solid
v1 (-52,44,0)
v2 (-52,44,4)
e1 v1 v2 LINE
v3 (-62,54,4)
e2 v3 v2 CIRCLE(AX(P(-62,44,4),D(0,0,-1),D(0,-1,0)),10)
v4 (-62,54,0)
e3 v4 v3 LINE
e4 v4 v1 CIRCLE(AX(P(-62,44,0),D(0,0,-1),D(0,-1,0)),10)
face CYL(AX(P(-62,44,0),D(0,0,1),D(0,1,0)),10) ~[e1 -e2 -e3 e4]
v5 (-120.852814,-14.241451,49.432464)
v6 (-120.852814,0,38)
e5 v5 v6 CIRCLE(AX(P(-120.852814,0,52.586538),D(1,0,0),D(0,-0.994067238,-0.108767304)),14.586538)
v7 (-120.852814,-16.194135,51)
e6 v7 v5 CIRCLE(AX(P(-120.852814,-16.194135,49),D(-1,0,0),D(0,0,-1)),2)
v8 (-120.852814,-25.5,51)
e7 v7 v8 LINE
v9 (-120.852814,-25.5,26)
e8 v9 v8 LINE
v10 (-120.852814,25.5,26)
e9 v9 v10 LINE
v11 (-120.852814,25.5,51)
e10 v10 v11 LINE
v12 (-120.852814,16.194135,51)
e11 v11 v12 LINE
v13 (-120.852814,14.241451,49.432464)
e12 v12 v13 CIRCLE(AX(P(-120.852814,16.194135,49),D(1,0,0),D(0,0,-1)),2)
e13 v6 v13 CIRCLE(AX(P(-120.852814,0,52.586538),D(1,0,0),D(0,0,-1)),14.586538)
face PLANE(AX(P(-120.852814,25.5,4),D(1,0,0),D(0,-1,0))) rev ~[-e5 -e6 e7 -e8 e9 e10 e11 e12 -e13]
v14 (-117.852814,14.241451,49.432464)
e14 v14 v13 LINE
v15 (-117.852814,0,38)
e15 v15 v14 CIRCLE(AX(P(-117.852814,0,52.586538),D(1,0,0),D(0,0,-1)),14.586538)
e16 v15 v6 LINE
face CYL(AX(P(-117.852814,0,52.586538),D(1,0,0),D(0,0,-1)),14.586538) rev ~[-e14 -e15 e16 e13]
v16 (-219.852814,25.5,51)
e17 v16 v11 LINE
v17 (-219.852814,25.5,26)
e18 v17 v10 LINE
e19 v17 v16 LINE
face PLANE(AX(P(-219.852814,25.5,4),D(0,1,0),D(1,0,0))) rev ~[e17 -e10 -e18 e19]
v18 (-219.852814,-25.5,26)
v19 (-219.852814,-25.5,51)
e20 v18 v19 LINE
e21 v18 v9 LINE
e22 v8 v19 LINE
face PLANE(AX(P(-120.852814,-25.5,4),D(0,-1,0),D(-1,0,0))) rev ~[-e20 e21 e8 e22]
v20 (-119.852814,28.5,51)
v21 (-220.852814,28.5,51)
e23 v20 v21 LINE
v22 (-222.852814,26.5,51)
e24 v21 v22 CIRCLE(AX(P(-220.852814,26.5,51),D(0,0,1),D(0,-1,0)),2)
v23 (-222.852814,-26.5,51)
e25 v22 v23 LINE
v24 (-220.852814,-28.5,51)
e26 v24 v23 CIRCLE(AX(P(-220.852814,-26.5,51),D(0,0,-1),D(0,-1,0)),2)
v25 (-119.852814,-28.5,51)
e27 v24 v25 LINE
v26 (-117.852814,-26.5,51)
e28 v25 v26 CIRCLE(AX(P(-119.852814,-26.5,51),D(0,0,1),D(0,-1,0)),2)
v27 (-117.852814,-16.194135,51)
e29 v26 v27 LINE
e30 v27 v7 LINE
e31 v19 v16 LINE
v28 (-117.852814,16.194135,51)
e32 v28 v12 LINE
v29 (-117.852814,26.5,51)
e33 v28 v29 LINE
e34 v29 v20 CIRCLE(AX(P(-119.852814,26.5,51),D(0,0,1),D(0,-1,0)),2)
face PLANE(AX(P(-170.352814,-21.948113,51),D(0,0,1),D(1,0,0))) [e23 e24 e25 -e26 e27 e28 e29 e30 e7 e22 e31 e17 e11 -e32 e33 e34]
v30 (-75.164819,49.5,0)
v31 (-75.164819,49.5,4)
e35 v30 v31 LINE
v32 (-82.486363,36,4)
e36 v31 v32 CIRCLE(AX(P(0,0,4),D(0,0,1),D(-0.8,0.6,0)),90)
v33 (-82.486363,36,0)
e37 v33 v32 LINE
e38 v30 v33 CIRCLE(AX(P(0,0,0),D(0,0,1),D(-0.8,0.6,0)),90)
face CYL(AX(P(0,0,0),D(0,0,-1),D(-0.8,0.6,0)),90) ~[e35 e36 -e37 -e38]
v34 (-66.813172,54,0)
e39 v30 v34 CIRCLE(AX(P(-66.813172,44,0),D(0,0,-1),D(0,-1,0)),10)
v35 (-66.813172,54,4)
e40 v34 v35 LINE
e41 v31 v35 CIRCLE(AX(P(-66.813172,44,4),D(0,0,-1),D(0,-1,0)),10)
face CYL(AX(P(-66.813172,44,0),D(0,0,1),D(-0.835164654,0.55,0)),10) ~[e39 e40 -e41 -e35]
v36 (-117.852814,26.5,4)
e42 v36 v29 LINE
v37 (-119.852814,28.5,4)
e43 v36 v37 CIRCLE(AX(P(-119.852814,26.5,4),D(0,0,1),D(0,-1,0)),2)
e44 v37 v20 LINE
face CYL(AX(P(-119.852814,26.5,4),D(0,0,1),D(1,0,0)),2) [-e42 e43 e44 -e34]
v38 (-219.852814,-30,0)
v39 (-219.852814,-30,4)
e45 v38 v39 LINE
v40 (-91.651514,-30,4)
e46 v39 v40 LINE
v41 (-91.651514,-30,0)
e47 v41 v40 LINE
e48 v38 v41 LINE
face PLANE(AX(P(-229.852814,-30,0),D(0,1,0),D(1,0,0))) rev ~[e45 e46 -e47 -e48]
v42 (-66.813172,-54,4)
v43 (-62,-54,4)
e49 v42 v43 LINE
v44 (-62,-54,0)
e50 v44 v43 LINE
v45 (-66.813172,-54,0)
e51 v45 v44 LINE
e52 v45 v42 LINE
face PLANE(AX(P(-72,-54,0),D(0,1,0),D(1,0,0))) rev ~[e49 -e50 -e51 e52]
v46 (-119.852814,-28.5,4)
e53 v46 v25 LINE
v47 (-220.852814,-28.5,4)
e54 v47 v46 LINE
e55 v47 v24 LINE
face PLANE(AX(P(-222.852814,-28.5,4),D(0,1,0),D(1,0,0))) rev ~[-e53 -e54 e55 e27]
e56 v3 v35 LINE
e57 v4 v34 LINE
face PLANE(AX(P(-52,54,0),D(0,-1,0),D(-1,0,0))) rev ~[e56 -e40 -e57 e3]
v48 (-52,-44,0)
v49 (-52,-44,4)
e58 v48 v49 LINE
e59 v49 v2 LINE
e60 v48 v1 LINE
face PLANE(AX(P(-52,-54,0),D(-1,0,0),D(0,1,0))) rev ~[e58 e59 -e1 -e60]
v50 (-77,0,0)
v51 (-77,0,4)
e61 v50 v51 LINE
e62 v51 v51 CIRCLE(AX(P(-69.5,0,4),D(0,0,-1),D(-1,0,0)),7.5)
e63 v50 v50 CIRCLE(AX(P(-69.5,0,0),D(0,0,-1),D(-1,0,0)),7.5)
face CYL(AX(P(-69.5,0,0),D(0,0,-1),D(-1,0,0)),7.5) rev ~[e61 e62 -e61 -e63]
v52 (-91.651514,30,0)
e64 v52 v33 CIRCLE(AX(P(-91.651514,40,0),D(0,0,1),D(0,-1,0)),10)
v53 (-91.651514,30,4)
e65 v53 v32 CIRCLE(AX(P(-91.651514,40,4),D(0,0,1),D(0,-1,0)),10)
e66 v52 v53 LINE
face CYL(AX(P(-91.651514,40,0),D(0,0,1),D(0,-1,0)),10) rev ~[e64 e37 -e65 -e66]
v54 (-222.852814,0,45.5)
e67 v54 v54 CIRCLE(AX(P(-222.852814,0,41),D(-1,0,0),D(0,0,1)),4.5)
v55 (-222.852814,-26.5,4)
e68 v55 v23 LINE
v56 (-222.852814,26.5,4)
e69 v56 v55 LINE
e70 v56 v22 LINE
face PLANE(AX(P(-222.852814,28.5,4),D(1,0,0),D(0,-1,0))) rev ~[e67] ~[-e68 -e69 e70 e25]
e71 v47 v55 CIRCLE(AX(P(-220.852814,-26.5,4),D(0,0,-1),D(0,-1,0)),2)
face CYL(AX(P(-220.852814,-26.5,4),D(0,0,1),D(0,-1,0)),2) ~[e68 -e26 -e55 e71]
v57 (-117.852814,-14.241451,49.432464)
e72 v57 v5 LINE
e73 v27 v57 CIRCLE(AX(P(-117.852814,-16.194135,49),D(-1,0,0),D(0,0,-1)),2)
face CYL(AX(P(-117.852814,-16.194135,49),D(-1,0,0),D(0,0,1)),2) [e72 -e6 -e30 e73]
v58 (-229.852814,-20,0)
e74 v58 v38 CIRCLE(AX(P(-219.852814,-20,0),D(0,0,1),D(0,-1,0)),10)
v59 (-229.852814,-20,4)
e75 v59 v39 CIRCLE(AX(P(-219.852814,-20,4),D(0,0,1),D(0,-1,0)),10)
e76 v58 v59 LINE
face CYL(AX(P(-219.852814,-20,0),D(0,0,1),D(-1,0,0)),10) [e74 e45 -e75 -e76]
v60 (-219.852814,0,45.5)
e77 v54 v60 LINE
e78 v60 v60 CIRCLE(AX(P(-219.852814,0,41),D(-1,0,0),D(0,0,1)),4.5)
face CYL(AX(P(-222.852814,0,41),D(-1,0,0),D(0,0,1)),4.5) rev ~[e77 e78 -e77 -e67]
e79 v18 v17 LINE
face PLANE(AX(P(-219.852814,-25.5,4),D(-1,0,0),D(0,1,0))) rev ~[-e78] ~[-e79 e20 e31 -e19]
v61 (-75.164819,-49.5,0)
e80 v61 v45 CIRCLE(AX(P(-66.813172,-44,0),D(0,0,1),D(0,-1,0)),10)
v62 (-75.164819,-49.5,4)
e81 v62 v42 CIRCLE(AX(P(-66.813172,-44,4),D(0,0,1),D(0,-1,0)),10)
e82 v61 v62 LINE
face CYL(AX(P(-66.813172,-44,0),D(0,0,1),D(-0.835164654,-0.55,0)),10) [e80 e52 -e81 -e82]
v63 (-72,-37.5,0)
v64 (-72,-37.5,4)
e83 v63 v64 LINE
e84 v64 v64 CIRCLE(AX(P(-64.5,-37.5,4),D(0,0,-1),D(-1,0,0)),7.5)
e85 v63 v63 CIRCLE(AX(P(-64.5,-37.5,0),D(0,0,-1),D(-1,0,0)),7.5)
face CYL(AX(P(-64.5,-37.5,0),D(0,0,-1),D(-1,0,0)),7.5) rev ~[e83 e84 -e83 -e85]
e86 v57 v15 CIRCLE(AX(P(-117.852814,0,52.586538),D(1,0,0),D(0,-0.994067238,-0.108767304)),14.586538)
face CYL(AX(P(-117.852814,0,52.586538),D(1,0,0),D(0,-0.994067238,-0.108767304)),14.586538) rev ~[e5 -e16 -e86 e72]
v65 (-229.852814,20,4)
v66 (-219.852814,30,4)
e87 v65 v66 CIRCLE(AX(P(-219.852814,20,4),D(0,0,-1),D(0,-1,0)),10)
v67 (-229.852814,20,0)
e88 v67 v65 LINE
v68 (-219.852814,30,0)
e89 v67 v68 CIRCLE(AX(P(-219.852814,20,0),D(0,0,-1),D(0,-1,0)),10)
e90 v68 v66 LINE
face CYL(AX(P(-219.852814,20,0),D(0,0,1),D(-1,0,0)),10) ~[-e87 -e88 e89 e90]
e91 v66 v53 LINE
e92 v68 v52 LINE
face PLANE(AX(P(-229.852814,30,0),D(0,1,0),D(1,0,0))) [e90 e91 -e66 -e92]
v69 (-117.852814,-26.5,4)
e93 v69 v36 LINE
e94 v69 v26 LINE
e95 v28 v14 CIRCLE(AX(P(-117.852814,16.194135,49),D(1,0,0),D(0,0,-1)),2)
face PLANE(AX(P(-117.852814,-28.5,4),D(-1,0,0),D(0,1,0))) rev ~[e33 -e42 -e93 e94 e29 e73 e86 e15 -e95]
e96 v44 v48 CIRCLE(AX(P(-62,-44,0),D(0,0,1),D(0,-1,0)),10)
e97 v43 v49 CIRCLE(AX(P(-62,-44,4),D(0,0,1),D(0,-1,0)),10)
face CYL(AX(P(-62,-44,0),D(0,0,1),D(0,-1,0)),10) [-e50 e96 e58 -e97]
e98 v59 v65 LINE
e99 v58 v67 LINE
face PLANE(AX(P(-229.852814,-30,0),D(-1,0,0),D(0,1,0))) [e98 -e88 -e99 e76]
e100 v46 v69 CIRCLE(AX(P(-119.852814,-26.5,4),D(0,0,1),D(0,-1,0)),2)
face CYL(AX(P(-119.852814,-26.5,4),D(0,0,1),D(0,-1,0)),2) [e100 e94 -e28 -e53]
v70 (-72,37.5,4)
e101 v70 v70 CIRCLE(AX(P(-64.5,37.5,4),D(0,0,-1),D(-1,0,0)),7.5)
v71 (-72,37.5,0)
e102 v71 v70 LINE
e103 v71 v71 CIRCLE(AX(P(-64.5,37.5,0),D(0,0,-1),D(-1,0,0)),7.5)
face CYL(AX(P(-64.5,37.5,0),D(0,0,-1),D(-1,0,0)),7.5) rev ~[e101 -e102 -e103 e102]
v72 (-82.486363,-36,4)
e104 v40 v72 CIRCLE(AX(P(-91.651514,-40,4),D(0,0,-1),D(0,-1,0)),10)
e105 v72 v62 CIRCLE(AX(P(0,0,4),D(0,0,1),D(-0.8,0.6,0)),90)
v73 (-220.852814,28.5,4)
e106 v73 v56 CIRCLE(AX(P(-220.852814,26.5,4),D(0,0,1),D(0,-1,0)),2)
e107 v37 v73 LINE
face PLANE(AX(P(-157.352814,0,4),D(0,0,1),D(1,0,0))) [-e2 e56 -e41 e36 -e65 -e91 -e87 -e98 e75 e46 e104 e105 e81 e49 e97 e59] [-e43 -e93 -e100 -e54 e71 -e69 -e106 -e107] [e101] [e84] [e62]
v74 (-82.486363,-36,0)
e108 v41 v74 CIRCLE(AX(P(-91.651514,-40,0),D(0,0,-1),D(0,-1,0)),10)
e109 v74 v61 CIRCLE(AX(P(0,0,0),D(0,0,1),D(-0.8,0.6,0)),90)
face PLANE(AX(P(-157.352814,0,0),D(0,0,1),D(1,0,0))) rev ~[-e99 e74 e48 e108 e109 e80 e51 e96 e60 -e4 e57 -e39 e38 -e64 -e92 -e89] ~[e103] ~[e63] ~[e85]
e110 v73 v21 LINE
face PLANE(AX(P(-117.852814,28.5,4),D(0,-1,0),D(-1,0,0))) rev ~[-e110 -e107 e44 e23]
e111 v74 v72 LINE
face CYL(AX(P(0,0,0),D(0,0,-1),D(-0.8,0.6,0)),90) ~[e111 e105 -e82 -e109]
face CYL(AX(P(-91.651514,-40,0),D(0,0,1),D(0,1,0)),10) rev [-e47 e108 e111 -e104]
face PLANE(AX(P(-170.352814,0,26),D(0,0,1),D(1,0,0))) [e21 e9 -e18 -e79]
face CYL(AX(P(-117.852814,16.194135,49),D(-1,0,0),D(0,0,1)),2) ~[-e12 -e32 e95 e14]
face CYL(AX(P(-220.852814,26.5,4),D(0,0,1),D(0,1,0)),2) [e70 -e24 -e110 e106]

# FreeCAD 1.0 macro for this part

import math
import FreeCAD as App
import Part
import Sketcher
from FreeCAD import Vector
Q = App.Units.Quantity


def edges_at(feature, points):
    """Names of the edges that pass closest to the given points."""
    edges = feature.Shape.Edges
    near = lambda p: min(range(len(edges)), key=lambda i: edges[i].distToShape(Part.Vertex(*p))[0])
    return sorted({f"Edge{near(p) + 1}" for p in points})


def add_polygon(sketch, points):
    """Adds a closed chain of lines whose ends are joined by coincident constraints."""
    first, n = sketch.GeometryCount, len(points)
    for a, b in zip(points, points[1:] + points[:1]):
        sketch.addGeometry(Part.LineSegment(App.Vector(*a, 0), App.Vector(*b, 0)), False)
    for i in range(n):
        sketch.addConstraint(Sketcher.Constraint("Coincident", first + i, 2, first + (i + 1) % n, 1))

doc = App.newDocument("Part")
body = doc.addObject("PartDesign::Body", "Body")

sketch1 = doc.addObject("Sketcher::SketchObject", "Sketch")
body.addObject(sketch1)
sketch1.AttachmentSupport = (doc.XY_Plane, [""])
sketch1.MapMode = "FlatFace"
sketch1.addGeometry([
    Part.LineSegment(Vector(-72, -54, 0), Vector(-52, -54, 0)),
    Part.LineSegment(Vector(-52, -54, 0), Vector(-52, 54, 0)),
    Part.LineSegment(Vector(-52, 54, 0), Vector(-72, 54, 0)),
    Part.ArcOfCircle(Part.Circle(Vector(0, 0, 0), Vector(0, 0, 1), 90), math.radians(143), math.radians(217)),
], False)
sketch1.addConstraint([
    Sketcher.Constraint("Coincident", 0, 2, 1, 1),
    Sketcher.Constraint("Coincident", 1, 2, 2, 1),
    Sketcher.Constraint("Coincident", 2, 2, 3, 1),
    Sketcher.Constraint("Coincident", 3, 2, 0, 1),
    Sketcher.Constraint("Horizontal", 0),
    Sketcher.Constraint("Vertical", 1),
    Sketcher.Constraint("Horizontal", 2),
    Sketcher.Constraint("Coincident", 3, 3, -1, 1),
    Sketcher.Constraint("Vertical", 2, 2, 3, 2),
    Sketcher.Constraint("Radius", 3, Q("90 mm")),
    Sketcher.Constraint("DistanceX", 0, 1, 0, 2, Q("20 mm")),
    Sketcher.Constraint("DistanceY", 1, 1, 1, 2, Q("108 mm")),
])
pad1 = doc.addObject("PartDesign::Pad", "Pad")
body.addObject(pad1)
pad1.Profile = sketch1
pad1.Length = 4

sketch2 = doc.addObject("Sketcher::SketchObject", "Sketch001")
body.addObject(sketch2)
sketch2.AttachmentSupport = (doc.XY_Plane, [""])
sketch2.MapMode = "FlatFace"
sketch2.addGeometry([
    Part.Circle(Vector(-70, 0, 0), Vector(0, 0, 1), 8),
    Part.Circle(Vector(-64, -38, 0), Vector(0, 0, 1), 8),
    Part.Circle(Vector(-64, 38, 0), Vector(0, 0, 1), 8),
], False)
sketch2.addConstraint([
    Sketcher.Constraint("Equal", 0, 1),
    Sketcher.Constraint("Equal", 1, 2),
    Sketcher.Constraint("Symmetric", 1, 3, 2, 3, -1),
    Sketcher.Constraint("PointOnObject", 0, 3, -1),
    Sketcher.Constraint("Diameter", 0, Q("15 mm")),
    Sketcher.Constraint("DistanceX", 0, 3, 1, 3, Q("5 mm")),
    Sketcher.Constraint("DistanceY", 1, 3, 2, 3, Q("75 mm")),
    Sketcher.Constraint("DistanceX", 0, 3, -1, 1, Q("69.5 mm")),
])
pocket1 = doc.addObject("PartDesign::Pocket", "Pocket")
body.addObject(pocket1)
pocket1.Profile = sketch2
pocket1.Length = 10
pocket1.Reversed = True

sketch3 = doc.addObject("Sketcher::SketchObject", "Sketch002")
body.addObject(sketch3)
sketch3.AttachmentSupport = (doc.XY_Plane, [""])
sketch3.MapMode = "FlatFace"
add_polygon(sketch3, [(-230, 30), (-230, -30), (-85, -30), (-85, 30)])
sketch3.addConstraint([
    Sketcher.Constraint("Vertical", 0),
    Sketcher.Constraint("Horizontal", 1),
    Sketcher.Constraint("Vertical", 2),
    Sketcher.Constraint("Horizontal", 3),
    Sketcher.Constraint("DistanceX", 1, 1, 1, 2, Q("145 mm")),
    Sketcher.Constraint("DistanceY", 0, 2, 0, 1, Q("60 mm")),
    Sketcher.Constraint("DistanceY", 0, 2, -1, 1, Q("30 mm")),
    Sketcher.Constraint("DistanceX", 0, 2, -1, 1, Q("229.852814 mm")),
])
pad2 = doc.addObject("PartDesign::Pad", "Pad001")
body.addObject(pad2)
pad2.Profile = sketch3
pad2.Length = 4

sketch4 = doc.addObject("Sketcher::SketchObject", "Sketch003")
body.addObject(sketch4)
sketch4.AttachmentSupport = (doc.XY_Plane, [""])
sketch4.MapMode = "FlatFace"
sketch4.AttachmentOffset = App.Placement(Vector(0, 0, 4), App.Rotation())
add_polygon(sketch4, [(-223, -28), (-118, -28), (-118, 28), (-223, 28)])
add_polygon(sketch4, [(-121, -26), (-220, -26), (-220, 26), (-121, 26)])
sketch4.addConstraint([
    Sketcher.Constraint("Horizontal", 0),
    Sketcher.Constraint("Vertical", 1),
    Sketcher.Constraint("Horizontal", 2),
    Sketcher.Constraint("Vertical", 3),
    Sketcher.Constraint("Horizontal", 4),
    Sketcher.Constraint("Vertical", 5),
    Sketcher.Constraint("Horizontal", 6),
    Sketcher.Constraint("Vertical", 7),
    Sketcher.Constraint("DistanceX", 0, 1, 0, 2, Q("105 mm")),
    Sketcher.Constraint("DistanceX", 4, 2, 4, 1, Q("99 mm")),
    Sketcher.Constraint("DistanceY", 1, 1, 1, 2, Q("57 mm")),
    Sketcher.Constraint("DistanceY", 5, 1, 5, 2, Q("51 mm")),
    Sketcher.Constraint("DistanceX", 3, 2, 4, 2, Q("3 mm")),
    Sketcher.Constraint("DistanceY", 3, 2, 4, 2, Q("3 mm")),
    Sketcher.Constraint("DistanceY", 0, 2, -1, 1, Q("28.5 mm")),
    Sketcher.Constraint("DistanceX", 0, 2, -1, 1, Q("117.852814 mm")),
])
pad3 = doc.addObject("PartDesign::Pad", "Pad002")
body.addObject(pad3)
pad3.Profile = sketch4
pad3.Length = 47

sketch5 = doc.addObject("Sketcher::SketchObject", "Sketch004")
body.addObject(sketch5)
sketch5.AttachmentSupport = (doc.YZ_Plane, [""])
sketch5.MapMode = "FlatFace"
sketch5.AttachmentOffset = App.Placement(Vector(0, 0, -117.852814), App.Rotation())
sketch5.addGeometry([
    Part.LineSegment(Vector(14, 51, 0), Vector(-14, 51, 0)),
    Part.ArcOfCircle(Part.Circle(Vector(0, 53, 0), Vector(0, 0, 1), 15), math.radians(-174), math.radians(-90)),
    Part.ArcOfCircle(Part.Circle(Vector(0, 53, 0), Vector(0, 0, 1), 15), math.radians(-90), math.radians(-6)),
], False)
sketch5.addConstraint([
    Sketcher.Constraint("Coincident", 0, 2, 1, 1),
    Sketcher.Constraint("Tangent", 1, 2, 2, 1),
    Sketcher.Constraint("Coincident", 2, 2, 0, 1),
    Sketcher.Constraint("Horizontal", 0),
    Sketcher.Constraint("Equal", 1, 2),
    Sketcher.Constraint("PointOnObject", 1, 3, -2),
    Sketcher.Constraint("PointOnObject", 1, 2, -2),
    Sketcher.Constraint("DistanceX", 0, 2, 0, 1, Q("29 mm")),
    Sketcher.Constraint("DistanceY", -1, 1, 0, 2, Q("51 mm")),
    Sketcher.Constraint("DistanceY", -1, 1, 1, 2, Q("38 mm")),
])
pocket2 = doc.addObject("PartDesign::Pocket", "Pocket001")
body.addObject(pocket2)
pocket2.Profile = sketch5
pocket2.Length = 10

sketch6 = doc.addObject("Sketcher::SketchObject", "Sketch005")
body.addObject(sketch6)
sketch6.AttachmentSupport = (doc.YZ_Plane, [""])
sketch6.MapMode = "FlatFace"
sketch6.AttachmentOffset = App.Placement(Vector(0, 0, -222.852814), App.Rotation())
sketch6.addGeometry(Part.Circle(Vector(0, 41, 0), Vector(0, 0, 1), 4.5), False)
sketch6.addConstraint([
    Sketcher.Constraint("PointOnObject", 0, 3, -2),
    Sketcher.Constraint("Diameter", 0, Q("9 mm")),
    Sketcher.Constraint("DistanceY", -1, 1, 0, 3, Q("41 mm")),
])
pocket3 = doc.addObject("PartDesign::Pocket", "Pocket002")
body.addObject(pocket3)
pocket3.Profile = sketch6
pocket3.Length = 9
pocket3.Reversed = True
doc.recompute()

fillet = doc.addObject("PartDesign::Fillet", "Fillet")
body.addObject(fillet)
fillet.Base = (pocket3, edges_at(pocket3, [(-229.853, 30, 2), (-229.853, -30, 2)]))
fillet.Radius = 10
doc.recompute()

fillet2 = doc.addObject("PartDesign::Fillet", "Fillet001")
body.addObject(fillet2)
fillet2.Base = (fillet, edges_at(fillet, [
    (-84.853, 30, 2),
    (-84.853, -30, 2),
    (-72, 54, 2),
    (-52, 54, 2),
    (-52, -54, 2),
    (-72, -54, 2),
]))
fillet2.Radius = 10
doc.recompute()

fillet3 = doc.addObject("PartDesign::Fillet", "Fillet002")
body.addObject(fillet3)
fillet3.Base = (fillet2, edges_at(fillet2, [
    (-117.853, -28.5, 27.5),
    (-117.853, 28.5, 27.5),
    (-222.853, 28.5, 27.5),
    (-222.853, -28.5, 27.5),
    (-119.353, 14.5, 51),
    (-119.353, -14.5, 51),
]))
fillet3.Radius = 2

sketch7 = doc.addObject("Sketcher::SketchObject", "Sketch006")
body.addObject(sketch7)
sketch7.AttachmentSupport = (doc.XY_Plane, [""])
sketch7.MapMode = "FlatFace"
sketch7.AttachmentOffset = App.Placement(Vector(0, 0, 4), App.Rotation())
add_polygon(sketch7, [(-220, 26), (-220, -26), (-121, -26), (-121, 26)])
sketch7.addConstraint([
    Sketcher.Constraint("Vertical", 0),
    Sketcher.Constraint("Horizontal", 1),
    Sketcher.Constraint("Vertical", 2),
    Sketcher.Constraint("Horizontal", 3),
    Sketcher.Constraint("DistanceX", 1, 1, 1, 2, Q("99 mm")),
    Sketcher.Constraint("DistanceY", 0, 2, 0, 1, Q("51 mm")),
    Sketcher.Constraint("DistanceY", 0, 2, -1, 1, Q("25.5 mm")),
    Sketcher.Constraint("DistanceX", 0, 2, -1, 1, Q("219.852814 mm")),
])
pad4 = doc.addObject("PartDesign::Pad", "Pad003")
body.addObject(pad4)
pad4.Profile = sketch7
pad4.Length = 22

doc.recompute()
